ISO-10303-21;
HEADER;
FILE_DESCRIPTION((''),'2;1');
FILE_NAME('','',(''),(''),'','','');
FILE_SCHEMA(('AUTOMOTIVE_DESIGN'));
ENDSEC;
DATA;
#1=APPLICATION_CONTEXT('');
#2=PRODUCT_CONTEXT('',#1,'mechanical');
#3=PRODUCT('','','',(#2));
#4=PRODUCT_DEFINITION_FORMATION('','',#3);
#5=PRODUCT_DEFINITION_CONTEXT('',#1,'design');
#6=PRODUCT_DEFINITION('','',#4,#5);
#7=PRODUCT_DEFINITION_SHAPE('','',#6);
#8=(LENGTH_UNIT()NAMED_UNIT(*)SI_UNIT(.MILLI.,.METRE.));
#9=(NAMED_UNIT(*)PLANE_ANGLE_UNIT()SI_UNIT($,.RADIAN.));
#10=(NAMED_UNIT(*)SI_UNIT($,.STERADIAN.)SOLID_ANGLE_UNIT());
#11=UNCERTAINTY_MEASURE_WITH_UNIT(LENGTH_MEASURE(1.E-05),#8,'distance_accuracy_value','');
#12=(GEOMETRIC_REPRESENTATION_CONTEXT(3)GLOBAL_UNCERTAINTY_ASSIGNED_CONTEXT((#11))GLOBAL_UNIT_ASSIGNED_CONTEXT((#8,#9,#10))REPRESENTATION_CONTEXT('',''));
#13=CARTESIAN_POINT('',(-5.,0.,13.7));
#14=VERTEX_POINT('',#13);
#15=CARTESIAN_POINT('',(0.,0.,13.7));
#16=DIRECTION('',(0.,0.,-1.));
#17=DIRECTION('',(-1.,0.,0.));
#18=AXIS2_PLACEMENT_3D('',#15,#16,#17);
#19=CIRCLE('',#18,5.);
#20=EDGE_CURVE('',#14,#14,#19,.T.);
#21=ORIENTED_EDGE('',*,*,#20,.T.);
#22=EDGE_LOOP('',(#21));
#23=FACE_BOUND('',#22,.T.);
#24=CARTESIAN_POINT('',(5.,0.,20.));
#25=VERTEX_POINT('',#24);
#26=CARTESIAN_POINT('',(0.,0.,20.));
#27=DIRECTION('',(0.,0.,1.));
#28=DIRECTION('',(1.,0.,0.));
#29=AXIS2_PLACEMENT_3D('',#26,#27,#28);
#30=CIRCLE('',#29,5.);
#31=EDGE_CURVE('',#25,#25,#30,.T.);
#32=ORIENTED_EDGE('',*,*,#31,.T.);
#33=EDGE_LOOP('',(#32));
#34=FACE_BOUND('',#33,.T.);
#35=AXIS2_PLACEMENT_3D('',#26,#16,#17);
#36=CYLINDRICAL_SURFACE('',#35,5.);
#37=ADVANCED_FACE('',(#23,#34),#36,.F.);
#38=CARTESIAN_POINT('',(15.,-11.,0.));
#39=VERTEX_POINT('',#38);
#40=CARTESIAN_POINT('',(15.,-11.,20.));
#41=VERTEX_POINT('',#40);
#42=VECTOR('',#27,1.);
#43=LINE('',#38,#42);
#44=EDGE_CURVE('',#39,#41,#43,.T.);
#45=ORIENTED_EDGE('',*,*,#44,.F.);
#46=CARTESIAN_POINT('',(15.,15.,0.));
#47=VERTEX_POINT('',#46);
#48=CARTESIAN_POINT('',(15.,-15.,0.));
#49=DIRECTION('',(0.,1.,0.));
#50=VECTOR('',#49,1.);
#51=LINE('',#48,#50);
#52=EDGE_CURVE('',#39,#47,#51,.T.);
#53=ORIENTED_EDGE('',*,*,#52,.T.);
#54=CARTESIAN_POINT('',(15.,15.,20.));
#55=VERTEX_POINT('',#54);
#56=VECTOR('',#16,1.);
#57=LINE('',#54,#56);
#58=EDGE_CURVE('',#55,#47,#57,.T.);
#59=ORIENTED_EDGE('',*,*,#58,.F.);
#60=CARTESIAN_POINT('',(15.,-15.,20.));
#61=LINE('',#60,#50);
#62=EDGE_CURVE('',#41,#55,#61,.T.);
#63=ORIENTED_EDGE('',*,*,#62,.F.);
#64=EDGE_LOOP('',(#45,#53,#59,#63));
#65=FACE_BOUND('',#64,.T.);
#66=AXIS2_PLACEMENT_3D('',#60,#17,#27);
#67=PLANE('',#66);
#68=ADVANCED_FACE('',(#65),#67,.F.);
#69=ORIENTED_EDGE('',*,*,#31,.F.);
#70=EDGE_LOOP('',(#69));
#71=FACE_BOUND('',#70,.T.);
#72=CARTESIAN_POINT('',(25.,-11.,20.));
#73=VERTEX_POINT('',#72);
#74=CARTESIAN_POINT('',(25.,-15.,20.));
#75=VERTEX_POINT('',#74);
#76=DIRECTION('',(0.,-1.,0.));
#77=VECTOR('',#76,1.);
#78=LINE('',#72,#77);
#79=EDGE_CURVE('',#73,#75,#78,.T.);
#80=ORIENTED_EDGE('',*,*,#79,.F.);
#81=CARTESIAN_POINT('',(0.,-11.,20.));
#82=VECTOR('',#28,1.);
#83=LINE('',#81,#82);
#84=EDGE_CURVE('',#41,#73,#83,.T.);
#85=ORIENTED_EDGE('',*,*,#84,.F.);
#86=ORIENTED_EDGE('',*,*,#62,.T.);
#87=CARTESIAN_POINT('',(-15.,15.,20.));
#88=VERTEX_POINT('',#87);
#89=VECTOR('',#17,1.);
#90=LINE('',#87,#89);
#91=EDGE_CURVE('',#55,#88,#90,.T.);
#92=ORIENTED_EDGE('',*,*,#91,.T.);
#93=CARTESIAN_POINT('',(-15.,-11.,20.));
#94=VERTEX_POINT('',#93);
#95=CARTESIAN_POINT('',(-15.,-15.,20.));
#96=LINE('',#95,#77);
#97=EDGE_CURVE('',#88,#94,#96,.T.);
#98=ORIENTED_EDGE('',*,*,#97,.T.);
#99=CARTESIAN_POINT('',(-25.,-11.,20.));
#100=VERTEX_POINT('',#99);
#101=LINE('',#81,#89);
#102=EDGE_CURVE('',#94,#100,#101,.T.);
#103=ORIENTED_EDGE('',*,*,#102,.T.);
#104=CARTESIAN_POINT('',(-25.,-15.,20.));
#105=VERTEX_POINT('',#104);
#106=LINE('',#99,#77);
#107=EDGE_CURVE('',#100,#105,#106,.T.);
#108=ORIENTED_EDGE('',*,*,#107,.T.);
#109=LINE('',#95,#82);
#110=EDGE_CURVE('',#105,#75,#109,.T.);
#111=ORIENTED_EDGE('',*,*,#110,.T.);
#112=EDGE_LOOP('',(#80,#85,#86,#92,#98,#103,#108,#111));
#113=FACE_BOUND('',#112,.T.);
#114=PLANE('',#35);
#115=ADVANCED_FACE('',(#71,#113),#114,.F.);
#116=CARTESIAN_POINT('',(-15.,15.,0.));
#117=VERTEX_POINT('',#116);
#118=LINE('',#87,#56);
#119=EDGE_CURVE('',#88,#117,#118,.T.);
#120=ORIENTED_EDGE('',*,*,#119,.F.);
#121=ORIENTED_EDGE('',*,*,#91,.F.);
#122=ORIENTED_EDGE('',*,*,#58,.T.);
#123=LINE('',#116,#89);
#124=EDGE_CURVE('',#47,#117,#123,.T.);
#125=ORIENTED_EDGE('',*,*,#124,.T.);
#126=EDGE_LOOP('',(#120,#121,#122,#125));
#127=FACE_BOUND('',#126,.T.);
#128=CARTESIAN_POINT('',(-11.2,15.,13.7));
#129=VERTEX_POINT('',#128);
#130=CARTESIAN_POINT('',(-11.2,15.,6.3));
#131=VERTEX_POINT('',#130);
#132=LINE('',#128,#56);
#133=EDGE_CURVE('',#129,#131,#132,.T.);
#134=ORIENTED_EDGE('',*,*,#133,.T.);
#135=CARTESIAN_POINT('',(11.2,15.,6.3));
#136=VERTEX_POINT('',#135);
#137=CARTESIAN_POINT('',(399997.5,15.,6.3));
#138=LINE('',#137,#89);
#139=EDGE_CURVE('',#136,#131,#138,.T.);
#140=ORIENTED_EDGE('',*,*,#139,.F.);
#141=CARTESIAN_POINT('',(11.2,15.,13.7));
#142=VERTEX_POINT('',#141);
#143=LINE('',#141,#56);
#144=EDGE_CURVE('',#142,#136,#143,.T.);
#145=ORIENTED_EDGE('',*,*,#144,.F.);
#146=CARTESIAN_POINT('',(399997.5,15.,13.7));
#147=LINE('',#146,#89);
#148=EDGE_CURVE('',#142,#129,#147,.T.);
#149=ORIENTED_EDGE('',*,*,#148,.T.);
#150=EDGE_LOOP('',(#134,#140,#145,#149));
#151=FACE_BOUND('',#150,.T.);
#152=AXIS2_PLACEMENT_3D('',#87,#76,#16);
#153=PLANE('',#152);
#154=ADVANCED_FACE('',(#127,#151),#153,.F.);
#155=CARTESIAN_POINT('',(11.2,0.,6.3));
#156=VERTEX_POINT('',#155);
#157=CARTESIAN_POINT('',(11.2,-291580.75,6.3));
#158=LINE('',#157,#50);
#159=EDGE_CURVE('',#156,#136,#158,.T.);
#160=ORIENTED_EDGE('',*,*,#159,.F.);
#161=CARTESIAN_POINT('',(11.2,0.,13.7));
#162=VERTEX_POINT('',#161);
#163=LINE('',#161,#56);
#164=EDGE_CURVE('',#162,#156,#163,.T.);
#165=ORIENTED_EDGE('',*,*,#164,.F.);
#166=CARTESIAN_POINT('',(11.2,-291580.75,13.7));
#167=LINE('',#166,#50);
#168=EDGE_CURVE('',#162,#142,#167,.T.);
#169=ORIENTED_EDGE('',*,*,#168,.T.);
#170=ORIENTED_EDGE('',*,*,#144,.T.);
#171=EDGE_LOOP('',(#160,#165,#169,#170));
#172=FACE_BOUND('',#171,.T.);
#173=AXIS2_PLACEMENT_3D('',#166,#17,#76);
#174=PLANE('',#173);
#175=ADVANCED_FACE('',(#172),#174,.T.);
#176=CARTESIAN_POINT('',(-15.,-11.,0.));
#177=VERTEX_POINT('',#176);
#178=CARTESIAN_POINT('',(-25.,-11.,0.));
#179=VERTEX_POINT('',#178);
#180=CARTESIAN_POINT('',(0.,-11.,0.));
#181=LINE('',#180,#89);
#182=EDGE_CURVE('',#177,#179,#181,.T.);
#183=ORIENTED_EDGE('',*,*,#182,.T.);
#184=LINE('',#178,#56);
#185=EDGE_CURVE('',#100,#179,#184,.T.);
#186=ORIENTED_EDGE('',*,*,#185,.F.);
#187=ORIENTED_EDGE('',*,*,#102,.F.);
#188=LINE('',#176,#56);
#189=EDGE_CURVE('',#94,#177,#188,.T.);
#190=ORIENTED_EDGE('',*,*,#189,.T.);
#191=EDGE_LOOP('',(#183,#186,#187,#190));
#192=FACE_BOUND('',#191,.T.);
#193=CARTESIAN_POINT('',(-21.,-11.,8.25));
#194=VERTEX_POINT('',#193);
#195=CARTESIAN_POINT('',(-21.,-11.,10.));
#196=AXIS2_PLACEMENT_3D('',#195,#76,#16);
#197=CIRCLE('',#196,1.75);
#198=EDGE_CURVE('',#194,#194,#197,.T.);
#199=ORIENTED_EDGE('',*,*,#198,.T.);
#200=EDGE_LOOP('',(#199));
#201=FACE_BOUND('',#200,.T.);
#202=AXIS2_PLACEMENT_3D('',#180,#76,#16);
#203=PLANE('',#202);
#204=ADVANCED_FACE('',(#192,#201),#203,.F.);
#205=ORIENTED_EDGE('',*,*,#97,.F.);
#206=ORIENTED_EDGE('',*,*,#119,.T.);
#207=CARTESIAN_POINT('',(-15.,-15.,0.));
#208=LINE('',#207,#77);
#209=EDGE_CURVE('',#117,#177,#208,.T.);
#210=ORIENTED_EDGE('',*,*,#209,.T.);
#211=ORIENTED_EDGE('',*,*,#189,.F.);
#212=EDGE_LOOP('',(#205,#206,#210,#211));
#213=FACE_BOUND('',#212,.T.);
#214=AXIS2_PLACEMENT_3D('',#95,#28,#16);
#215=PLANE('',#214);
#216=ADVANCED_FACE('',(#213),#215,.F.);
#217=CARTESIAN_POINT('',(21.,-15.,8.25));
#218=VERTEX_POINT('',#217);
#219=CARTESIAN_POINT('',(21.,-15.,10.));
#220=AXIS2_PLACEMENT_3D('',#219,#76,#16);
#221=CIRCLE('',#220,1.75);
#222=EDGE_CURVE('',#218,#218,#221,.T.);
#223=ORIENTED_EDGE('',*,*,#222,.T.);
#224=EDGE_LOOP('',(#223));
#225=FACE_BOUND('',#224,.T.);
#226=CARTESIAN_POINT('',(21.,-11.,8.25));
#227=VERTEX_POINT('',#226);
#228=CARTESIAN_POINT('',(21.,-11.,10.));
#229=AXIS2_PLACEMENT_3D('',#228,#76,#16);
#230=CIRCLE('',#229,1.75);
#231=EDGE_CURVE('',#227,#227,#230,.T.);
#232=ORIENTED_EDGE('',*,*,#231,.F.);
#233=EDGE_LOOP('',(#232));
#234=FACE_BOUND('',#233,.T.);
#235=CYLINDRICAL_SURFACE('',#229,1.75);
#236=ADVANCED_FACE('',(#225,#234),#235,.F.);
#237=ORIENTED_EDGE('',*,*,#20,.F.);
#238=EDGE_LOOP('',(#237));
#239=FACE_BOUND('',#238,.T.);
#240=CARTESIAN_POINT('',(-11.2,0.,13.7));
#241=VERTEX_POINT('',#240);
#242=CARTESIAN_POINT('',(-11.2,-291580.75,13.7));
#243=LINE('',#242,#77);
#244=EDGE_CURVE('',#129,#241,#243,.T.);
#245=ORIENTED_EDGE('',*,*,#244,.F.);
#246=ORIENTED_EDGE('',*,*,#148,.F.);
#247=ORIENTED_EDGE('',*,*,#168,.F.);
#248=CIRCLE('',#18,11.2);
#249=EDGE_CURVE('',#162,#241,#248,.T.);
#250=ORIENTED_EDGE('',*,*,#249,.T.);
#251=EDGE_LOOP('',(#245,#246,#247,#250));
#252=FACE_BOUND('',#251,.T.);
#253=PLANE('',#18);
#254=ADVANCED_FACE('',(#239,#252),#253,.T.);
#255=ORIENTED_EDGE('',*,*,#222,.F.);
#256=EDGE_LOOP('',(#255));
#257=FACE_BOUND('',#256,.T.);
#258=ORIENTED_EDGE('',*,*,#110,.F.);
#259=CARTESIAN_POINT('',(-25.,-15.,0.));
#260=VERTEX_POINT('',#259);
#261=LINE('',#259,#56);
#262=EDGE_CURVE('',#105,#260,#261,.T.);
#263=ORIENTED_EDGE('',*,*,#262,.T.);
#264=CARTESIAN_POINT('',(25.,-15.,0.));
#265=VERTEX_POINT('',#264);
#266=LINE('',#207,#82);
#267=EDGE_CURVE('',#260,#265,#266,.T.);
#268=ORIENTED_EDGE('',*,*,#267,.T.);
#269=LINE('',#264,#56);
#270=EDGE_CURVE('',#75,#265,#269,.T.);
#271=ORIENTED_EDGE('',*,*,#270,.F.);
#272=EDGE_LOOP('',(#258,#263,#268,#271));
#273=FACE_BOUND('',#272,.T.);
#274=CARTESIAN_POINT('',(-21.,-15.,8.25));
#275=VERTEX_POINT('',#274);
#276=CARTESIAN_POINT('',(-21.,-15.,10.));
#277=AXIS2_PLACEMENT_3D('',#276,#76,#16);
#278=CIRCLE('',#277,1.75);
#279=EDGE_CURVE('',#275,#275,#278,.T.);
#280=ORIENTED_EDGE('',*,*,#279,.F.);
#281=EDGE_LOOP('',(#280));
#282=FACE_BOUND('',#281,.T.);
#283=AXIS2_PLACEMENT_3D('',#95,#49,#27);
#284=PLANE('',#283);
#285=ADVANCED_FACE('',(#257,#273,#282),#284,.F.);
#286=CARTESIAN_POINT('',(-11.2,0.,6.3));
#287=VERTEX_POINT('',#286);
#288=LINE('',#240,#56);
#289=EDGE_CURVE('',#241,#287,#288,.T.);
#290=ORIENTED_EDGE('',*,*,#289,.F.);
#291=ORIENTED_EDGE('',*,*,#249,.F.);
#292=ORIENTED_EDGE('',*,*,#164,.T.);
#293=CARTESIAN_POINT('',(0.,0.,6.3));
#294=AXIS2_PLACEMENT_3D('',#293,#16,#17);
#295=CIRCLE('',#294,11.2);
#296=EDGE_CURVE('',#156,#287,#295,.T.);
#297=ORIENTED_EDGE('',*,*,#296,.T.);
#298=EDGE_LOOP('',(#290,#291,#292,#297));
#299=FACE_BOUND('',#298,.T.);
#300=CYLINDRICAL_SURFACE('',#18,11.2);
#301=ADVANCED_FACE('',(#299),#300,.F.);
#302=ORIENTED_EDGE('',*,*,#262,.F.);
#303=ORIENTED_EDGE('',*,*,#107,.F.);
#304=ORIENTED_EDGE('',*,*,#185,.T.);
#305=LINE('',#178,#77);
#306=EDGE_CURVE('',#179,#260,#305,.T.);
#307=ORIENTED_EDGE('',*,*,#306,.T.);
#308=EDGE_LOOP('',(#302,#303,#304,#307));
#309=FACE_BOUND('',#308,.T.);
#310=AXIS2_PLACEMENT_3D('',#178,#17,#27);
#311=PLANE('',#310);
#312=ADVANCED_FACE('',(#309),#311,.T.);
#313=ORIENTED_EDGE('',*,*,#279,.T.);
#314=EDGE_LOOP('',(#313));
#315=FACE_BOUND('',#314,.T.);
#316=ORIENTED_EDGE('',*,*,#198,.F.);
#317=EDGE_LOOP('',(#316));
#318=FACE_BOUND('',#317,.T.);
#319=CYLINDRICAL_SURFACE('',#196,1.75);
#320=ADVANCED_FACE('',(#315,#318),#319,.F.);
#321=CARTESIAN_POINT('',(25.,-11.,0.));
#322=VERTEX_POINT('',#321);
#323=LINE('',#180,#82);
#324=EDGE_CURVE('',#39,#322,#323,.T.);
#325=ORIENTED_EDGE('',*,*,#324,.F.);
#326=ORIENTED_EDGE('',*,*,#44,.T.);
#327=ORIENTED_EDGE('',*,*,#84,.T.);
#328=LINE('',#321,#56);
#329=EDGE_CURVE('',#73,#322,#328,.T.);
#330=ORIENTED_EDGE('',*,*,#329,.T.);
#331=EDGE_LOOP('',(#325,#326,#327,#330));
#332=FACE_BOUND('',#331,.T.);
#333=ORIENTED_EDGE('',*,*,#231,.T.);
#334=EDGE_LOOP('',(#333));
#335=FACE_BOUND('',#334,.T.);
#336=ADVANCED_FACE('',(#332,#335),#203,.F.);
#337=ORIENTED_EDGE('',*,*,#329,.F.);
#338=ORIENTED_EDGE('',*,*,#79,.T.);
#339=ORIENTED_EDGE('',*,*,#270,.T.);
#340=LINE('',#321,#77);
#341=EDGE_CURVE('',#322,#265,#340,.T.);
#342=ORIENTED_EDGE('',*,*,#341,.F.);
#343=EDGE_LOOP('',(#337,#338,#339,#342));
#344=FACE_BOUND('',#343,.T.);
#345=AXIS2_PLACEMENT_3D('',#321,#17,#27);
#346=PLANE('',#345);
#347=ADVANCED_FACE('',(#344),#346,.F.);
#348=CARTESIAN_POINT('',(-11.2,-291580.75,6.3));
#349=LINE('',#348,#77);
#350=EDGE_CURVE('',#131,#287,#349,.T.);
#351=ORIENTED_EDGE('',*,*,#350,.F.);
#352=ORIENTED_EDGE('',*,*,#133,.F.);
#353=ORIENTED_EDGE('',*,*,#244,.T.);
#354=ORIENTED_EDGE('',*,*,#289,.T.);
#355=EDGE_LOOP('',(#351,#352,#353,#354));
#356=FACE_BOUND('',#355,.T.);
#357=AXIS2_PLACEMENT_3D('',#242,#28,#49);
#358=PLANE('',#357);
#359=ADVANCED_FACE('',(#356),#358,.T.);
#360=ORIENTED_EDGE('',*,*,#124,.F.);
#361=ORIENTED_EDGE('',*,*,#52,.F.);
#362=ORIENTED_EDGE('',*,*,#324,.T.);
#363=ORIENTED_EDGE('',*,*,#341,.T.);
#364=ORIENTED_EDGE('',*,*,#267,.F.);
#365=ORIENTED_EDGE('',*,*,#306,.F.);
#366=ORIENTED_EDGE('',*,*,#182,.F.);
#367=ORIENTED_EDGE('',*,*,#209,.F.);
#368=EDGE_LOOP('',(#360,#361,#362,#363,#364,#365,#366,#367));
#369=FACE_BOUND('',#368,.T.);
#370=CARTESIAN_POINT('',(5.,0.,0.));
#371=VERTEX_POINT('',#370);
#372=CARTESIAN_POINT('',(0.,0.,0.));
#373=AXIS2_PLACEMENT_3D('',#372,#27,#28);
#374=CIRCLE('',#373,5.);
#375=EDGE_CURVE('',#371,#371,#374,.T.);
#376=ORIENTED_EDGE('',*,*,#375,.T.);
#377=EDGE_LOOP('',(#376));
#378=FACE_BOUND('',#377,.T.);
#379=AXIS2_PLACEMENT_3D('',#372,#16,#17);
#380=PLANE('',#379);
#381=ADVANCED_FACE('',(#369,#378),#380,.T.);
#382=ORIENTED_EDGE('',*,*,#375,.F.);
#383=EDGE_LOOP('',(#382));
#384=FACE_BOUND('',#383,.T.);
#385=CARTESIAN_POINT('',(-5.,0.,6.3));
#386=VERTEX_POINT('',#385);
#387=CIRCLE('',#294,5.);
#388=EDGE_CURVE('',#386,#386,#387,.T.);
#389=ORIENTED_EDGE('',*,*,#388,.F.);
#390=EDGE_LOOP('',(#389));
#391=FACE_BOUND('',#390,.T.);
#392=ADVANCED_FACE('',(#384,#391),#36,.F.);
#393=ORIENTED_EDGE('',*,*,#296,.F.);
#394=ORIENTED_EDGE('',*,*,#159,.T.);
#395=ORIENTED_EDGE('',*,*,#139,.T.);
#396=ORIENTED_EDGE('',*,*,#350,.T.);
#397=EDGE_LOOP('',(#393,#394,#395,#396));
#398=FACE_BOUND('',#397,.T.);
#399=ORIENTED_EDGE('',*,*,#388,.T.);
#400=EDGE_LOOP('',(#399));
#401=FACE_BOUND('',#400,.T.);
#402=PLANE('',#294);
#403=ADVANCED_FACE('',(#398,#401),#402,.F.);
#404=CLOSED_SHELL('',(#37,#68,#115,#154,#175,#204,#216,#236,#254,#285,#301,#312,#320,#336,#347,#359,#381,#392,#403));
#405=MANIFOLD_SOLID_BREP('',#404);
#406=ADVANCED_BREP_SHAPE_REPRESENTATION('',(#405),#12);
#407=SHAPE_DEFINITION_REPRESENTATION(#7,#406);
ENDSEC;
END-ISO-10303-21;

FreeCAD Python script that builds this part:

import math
import FreeCAD as App
import Part
import Sketcher

V = App.Vector

doc = App.newDocument("Part")
body = doc.addObject("PartDesign::Body", "Body")

# Sketch on XY plane
sketch1 = body.newObject("Sketcher::SketchObject", "Sketch")
sketch1.AttachmentSupport = (doc.getObject("XY_Plane"), [""])
sketch1.MapMode = "FlatFace"
sketch1.addGeometry(Part.LineSegment(V(-15, 15, 0), V(-15, -15, 0)), False)
sketch1.addGeometry(Part.LineSegment(V(-15, -15, 0), V(15, -15, 0)), False)
sketch1.addGeometry(Part.LineSegment(V(15, -15, 0), V(15, 15, 0)), False)
sketch1.addGeometry(Part.LineSegment(V(15, 15, 0), V(-15, 15, 0)), False)
sketch1.addGeometry(Part.Circle(V(0, 0, 0), V(0, 0, 1), 5), False)
sketch1.addConstraint(Sketcher.Constraint("Coincident", 0, 2, 1, 1))
sketch1.addConstraint(Sketcher.Constraint("Coincident", 1, 2, 2, 1))
sketch1.addConstraint(Sketcher.Constraint("Coincident", 2, 2, 3, 1))
sketch1.addConstraint(Sketcher.Constraint("Coincident", 3, 2, 0, 1))
sketch1.addConstraint(Sketcher.Constraint("Vertical", 0))
sketch1.addConstraint(Sketcher.Constraint("Horizontal", 1))
sketch1.addConstraint(Sketcher.Constraint("Vertical", 2))
sketch1.addConstraint(Sketcher.Constraint("Horizontal", 3))
sketch1.addConstraint(Sketcher.Constraint("Coincident", 4, 3, -1, 1))
sketch1.addConstraint(Sketcher.Constraint("Symmetric", 0, 2, 2, 2, -1, 1))
sketch1.addConstraint(Sketcher.Constraint("Equal", 3, 0))
sketch1.addConstraint(Sketcher.Constraint("Diameter", 4, 10.0))
sketch1.addConstraint(Sketcher.Constraint("DistanceX", 1, 1, 1, 2, 30.0))
pad1 = body.newObject("PartDesign::Pad", "Pad")
pad1.Profile = sketch1
pad1.Length = 20

# Sketch on XY plane
sketch2 = body.newObject("Sketcher::SketchObject", "Sketch001")
sketch2.AttachmentSupport = (doc.getObject("XY_Plane"), [""])
sketch2.MapMode = "FlatFace"
sketch2.AttachmentOffset = App.Placement(V(0, 0, 10), App.Rotation())
sketch2.addGeometry(Part.LineSegment(V(-11, 15, 0), V(-11, 0, 0)), False)
sketch2.addGeometry(Part.ArcOfCircle(Part.Circle(V(0, 0, 0), V(0, 0, 1), 11), math.radians(180), math.radians(360)), False)
sketch2.addGeometry(Part.LineSegment(V(11, 0, 0), V(11, 15, 0)), False)
sketch2.addGeometry(Part.LineSegment(V(11, 15, 0), V(-11, 15, 0)), False)
sketch2.addConstraint(Sketcher.Constraint("Tangent", 0, 2, 1, 1))
sketch2.addConstraint(Sketcher.Constraint("Tangent", 1, 2, 2, 1))
sketch2.addConstraint(Sketcher.Constraint("Coincident", 2, 2, 3, 1))
sketch2.addConstraint(Sketcher.Constraint("Coincident", 3, 2, 0, 1))
sketch2.addConstraint(Sketcher.Constraint("Vertical", 0))
sketch2.addConstraint(Sketcher.Constraint("Vertical", 2))
sketch2.addConstraint(Sketcher.Constraint("Horizontal", 3))
sketch2.addConstraint(Sketcher.Constraint("Coincident", 1, 3, -1, 1))
sketch2.addConstraint(Sketcher.Constraint("Radius", 1, 11.2))
sketch2.addConstraint(Sketcher.Constraint("DistanceY", 0, 2, 0, 1, 15.0))
pocket1 = body.newObject("PartDesign::Pocket", "Pocket")
pocket1.Profile = sketch2
pocket1.Length = 7.4
pocket1.Midplane = True

# Sketch on XZ plane
sketch3 = body.newObject("Sketcher::SketchObject", "Sketch002")
sketch3.AttachmentSupport = (doc.getObject("XZ_Plane"), [""])
sketch3.MapMode = "FlatFace"
sketch3.AttachmentOffset = App.Placement(V(0, 0, 15), App.Rotation())
sketch3.addGeometry(Part.LineSegment(V(-25, 20, 0), V(-25, 0, 0)), False)
sketch3.addGeometry(Part.LineSegment(V(-25, 0, 0), V(-15, 0, 0)), False)
sketch3.addGeometry(Part.LineSegment(V(-15, 0, 0), V(-15, 20, 0)), False)
sketch3.addGeometry(Part.LineSegment(V(-15, 20, 0), V(-25, 20, 0)), False)
sketch3.addGeometry(Part.Circle(V(-21, 10, 0), V(0, 0, 1), 1.8), False)
sketch3.addGeometry(Part.LineSegment(V(15, 20, 0), V(15, 0, 0)), False)
sketch3.addGeometry(Part.LineSegment(V(15, 0, 0), V(25, 0, 0)), False)
sketch3.addGeometry(Part.LineSegment(V(25, 0, 0), V(25, 20, 0)), False)
sketch3.addGeometry(Part.LineSegment(V(25, 20, 0), V(15, 20, 0)), False)
sketch3.addGeometry(Part.Circle(V(21, 10, 0), V(0, 0, 1), 1.8), False)
sketch3.addConstraint(Sketcher.Constraint("Coincident", 0, 2, 1, 1))
sketch3.addConstraint(Sketcher.Constraint("Coincident", 1, 2, 2, 1))
sketch3.addConstraint(Sketcher.Constraint("Coincident", 2, 2, 3, 1))
sketch3.addConstraint(Sketcher.Constraint("Coincident", 3, 2, 0, 1))
sketch3.addConstraint(Sketcher.Constraint("Coincident", 5, 2, 6, 1))
sketch3.addConstraint(Sketcher.Constraint("Coincident", 6, 2, 7, 1))
sketch3.addConstraint(Sketcher.Constraint("Coincident", 7, 2, 8, 1))
sketch3.addConstraint(Sketcher.Constraint("Coincident", 8, 2, 5, 1))
sketch3.addConstraint(Sketcher.Constraint("Vertical", 0))
sketch3.addConstraint(Sketcher.Constraint("Horizontal", 1))
sketch3.addConstraint(Sketcher.Constraint("Vertical", 2))
sketch3.addConstraint(Sketcher.Constraint("Horizontal", 3))
sketch3.addConstraint(Sketcher.Constraint("Vertical", 5))
sketch3.addConstraint(Sketcher.Constraint("Horizontal", 6))
sketch3.addConstraint(Sketcher.Constraint("Vertical", 7))
sketch3.addConstraint(Sketcher.Constraint("Horizontal", 8))
sketch3.addConstraint(Sketcher.Constraint("Equal", 4, 9))
sketch3.addConstraint(Sketcher.Constraint("Symmetric", 1, 2, 5, 2, -1, 1))
sketch3.addConstraint(Sketcher.Constraint("Symmetric", 4, 3, 9, 3, -2))
sketch3.addConstraint(Sketcher.Constraint("Symmetric", 0, 2, 6, 2, -2))
sketch3.addConstraint(Sketcher.Constraint("Horizontal", 3, 2, 7, 2))
sketch3.addConstraint(Sketcher.Constraint("Diameter", 4, 3.5))
sketch3.addConstraint(Sketcher.Constraint("DistanceX", 1, 1, 1, 2, 10.0))
sketch3.addConstraint(Sketcher.Constraint("DistanceY", 0, 2, 0, 1, 20.0))
sketch3.addConstraint(Sketcher.Constraint("DistanceX", 4, 3, -1, 1, 21.0))
sketch3.addConstraint(Sketcher.Constraint("DistanceY", -1, 1, 4, 3, 10.0))
sketch3.addConstraint(Sketcher.Constraint("DistanceX", 0, 2, -1, 1, 25.0))
pad2 = body.newObject("PartDesign::Pad", "Pad001")
pad2.Profile = sketch3
pad2.Length = 4
pad2.Reversed = True

doc.recompute()
